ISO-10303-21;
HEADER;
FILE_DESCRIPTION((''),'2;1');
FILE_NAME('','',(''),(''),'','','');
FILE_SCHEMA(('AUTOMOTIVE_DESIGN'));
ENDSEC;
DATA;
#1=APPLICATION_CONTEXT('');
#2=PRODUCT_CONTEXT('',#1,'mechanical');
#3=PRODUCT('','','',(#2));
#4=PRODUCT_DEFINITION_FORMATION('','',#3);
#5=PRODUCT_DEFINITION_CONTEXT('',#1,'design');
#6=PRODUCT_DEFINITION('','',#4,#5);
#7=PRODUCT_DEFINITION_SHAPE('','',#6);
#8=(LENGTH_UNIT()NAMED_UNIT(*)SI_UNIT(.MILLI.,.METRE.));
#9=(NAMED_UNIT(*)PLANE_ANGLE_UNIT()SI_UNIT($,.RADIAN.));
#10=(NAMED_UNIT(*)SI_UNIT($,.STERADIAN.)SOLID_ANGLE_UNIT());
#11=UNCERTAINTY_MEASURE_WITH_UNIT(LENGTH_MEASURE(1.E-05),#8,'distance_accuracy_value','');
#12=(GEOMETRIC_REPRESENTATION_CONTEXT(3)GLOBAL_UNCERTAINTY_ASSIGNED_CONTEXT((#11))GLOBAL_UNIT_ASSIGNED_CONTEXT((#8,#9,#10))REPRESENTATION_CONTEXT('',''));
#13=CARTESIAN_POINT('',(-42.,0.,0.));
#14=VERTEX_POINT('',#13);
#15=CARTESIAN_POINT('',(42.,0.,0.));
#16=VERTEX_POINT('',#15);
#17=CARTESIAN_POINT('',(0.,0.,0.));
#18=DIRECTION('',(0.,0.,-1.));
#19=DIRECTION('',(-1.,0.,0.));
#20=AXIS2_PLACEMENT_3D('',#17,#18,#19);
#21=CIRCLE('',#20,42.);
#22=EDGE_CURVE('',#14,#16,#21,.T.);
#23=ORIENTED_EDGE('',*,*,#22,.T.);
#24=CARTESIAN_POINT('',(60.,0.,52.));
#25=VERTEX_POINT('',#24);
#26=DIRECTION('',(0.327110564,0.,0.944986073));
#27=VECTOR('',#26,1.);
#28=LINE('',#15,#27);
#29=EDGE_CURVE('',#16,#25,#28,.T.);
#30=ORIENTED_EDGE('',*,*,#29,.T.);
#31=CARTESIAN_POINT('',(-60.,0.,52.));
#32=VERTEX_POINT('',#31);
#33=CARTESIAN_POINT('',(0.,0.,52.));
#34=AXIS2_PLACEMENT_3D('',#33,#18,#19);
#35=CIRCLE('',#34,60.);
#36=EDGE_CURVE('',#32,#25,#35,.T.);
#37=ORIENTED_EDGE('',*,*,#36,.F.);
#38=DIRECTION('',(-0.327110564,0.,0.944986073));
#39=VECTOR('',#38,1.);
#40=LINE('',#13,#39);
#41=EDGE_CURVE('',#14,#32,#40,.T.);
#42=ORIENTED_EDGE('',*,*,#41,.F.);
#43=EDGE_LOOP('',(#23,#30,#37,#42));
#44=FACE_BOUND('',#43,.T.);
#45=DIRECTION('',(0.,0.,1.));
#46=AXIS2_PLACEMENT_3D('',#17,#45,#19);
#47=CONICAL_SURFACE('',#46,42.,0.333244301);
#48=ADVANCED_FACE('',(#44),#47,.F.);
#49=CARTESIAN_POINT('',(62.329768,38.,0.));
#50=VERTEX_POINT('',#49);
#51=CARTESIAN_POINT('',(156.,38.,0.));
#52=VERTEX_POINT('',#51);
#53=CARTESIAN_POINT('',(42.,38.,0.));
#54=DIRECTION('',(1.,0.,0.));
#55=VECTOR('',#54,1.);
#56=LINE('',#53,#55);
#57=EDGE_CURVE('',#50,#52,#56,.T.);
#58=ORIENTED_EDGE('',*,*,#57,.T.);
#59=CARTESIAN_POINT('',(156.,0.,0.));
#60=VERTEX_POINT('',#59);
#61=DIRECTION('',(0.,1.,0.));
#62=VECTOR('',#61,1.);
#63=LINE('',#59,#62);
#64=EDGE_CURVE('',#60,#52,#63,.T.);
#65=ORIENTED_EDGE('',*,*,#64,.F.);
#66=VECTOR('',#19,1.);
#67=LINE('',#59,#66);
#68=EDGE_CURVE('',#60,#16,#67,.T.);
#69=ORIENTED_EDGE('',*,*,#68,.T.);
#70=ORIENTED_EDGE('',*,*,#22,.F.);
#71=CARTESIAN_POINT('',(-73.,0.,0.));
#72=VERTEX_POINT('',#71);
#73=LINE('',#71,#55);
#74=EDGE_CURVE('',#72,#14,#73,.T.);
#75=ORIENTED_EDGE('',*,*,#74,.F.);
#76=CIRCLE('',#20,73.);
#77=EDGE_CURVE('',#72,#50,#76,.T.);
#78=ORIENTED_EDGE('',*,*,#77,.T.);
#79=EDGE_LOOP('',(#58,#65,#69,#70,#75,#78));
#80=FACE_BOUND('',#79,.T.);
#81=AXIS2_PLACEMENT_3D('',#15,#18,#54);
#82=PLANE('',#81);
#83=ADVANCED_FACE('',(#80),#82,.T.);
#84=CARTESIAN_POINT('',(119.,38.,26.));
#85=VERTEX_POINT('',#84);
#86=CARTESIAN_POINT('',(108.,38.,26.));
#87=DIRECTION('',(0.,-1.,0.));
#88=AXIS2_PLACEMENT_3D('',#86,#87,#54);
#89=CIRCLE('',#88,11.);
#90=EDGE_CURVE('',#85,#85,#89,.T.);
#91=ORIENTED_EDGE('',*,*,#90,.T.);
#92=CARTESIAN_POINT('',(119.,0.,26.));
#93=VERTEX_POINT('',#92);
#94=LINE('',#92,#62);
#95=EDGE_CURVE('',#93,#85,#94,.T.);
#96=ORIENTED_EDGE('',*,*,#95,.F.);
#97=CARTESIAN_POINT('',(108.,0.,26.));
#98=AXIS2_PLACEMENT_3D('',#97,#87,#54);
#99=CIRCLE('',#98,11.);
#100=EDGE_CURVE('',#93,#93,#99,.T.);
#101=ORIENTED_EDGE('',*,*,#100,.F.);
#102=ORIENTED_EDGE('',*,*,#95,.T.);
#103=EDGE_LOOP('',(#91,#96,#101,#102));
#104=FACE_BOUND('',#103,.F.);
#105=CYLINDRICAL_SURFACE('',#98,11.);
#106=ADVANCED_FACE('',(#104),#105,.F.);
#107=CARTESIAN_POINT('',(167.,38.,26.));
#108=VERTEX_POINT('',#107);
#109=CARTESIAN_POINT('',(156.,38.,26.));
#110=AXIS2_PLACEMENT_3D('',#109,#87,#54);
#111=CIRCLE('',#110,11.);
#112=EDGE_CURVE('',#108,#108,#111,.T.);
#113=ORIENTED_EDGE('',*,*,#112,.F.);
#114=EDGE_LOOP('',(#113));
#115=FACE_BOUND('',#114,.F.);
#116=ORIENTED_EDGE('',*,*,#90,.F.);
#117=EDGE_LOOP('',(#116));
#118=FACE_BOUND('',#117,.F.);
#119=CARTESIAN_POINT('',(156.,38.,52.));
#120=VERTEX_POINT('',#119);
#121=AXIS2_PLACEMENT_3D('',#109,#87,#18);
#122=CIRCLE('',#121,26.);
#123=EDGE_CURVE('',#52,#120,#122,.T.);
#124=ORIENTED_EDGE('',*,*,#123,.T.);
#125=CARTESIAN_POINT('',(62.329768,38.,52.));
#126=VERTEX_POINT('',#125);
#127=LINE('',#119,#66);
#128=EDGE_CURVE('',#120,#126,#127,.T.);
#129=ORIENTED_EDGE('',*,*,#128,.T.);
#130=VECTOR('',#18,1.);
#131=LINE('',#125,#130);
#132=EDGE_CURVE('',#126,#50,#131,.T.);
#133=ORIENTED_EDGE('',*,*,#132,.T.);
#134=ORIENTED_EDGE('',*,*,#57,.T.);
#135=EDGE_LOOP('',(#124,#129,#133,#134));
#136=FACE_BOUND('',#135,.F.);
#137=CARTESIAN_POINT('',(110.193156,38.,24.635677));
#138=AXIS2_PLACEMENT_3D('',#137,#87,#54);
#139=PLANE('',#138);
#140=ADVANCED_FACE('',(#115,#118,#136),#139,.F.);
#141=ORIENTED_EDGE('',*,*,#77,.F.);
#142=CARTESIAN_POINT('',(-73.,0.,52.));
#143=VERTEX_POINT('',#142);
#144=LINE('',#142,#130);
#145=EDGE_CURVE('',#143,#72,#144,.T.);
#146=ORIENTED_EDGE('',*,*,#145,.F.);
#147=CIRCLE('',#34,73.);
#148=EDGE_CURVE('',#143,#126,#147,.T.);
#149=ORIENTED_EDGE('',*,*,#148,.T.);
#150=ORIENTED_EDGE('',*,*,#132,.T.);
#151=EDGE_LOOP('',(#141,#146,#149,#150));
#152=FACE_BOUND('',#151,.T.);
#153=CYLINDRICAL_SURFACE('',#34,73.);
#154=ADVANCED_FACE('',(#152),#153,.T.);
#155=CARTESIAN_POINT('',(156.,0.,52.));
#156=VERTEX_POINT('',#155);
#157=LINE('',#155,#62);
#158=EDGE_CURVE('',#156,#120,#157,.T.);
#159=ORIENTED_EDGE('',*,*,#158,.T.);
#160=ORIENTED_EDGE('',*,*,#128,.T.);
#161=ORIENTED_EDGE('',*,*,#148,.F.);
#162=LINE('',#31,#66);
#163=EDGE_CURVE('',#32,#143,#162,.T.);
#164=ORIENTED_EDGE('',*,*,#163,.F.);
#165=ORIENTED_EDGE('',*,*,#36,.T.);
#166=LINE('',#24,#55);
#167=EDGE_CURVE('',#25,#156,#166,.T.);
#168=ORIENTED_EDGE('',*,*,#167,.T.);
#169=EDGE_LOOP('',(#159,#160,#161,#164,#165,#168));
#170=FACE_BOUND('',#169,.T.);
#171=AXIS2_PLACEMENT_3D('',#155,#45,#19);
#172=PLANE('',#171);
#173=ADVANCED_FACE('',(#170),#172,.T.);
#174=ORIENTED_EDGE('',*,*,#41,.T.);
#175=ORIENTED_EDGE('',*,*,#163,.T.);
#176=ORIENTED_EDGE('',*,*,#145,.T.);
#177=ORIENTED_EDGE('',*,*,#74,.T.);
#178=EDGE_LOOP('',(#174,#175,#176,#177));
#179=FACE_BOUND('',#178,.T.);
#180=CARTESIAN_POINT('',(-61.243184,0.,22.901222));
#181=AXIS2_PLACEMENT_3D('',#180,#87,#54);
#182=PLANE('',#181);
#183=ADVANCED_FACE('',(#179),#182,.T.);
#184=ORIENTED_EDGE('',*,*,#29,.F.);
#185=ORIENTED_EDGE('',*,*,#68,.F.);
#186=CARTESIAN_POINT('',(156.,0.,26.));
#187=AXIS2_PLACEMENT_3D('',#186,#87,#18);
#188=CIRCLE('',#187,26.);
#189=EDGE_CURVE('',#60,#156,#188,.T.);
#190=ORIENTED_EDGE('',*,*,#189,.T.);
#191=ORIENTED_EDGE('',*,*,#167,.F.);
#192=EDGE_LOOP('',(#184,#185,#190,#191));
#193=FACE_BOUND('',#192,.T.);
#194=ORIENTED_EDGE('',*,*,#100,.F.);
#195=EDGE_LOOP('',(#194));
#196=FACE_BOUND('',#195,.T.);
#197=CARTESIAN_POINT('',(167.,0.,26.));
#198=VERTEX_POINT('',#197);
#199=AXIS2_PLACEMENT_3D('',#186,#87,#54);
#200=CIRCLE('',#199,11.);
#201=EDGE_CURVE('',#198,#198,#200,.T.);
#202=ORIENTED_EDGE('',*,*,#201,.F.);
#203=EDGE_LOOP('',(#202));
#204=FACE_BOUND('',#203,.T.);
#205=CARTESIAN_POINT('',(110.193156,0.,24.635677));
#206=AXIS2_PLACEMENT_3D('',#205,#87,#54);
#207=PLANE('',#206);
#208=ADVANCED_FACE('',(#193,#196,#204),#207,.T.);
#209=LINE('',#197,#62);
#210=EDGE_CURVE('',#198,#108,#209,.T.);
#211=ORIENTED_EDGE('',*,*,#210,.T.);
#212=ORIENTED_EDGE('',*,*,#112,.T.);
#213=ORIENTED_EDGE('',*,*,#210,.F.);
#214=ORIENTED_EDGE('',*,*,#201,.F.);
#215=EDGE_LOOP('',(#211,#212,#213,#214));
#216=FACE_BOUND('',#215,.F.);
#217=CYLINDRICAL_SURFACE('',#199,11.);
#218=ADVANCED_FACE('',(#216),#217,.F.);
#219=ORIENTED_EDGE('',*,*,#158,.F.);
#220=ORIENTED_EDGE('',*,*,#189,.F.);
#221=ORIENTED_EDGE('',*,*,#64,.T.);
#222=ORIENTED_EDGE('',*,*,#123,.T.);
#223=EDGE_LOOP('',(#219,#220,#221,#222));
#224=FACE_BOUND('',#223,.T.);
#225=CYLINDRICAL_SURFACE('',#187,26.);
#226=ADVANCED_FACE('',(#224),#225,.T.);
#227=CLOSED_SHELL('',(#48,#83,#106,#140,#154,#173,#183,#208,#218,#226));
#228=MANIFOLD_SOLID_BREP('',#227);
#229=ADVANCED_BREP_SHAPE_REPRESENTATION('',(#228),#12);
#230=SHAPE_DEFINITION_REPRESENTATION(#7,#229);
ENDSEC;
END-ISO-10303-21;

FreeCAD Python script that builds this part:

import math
import FreeCAD as App
import Part
import Sketcher

doc = App.newDocument("Part")
body = doc.addObject("PartDesign::Body", "Body")

sketch1 = doc.addObject("Sketcher::SketchObject", "Sketch")
body.addObject(sketch1)
sketch1.AttachmentSupport = (doc.XZ_Plane, [""])
sketch1.MapMode = "FlatFace"
sketch1.addGeometry(Part.LineSegment(App.Vector(-60, 52, 0), App.Vector(-73, 52, 0)), False)
sketch1.addGeometry(Part.LineSegment(App.Vector(-73, 52, 0), App.Vector(-73, 0, 0)), False)
sketch1.addGeometry(Part.LineSegment(App.Vector(-73, 0, 0), App.Vector(-42, 0, 0)), False)
sketch1.addGeometry(Part.LineSegment(App.Vector(-42, 0, 0), App.Vector(-60, 52, 0)), False)
sketch1.addConstraint(Sketcher.Constraint("Coincident", 0, 2, 1, 1))
sketch1.addConstraint(Sketcher.Constraint("Coincident", 1, 2, 2, 1))
sketch1.addConstraint(Sketcher.Constraint("Coincident", 2, 2, 3, 1))
sketch1.addConstraint(Sketcher.Constraint("Coincident", 3, 2, 0, 1))
sketch1.addConstraint(Sketcher.Constraint("Horizontal", 0))
sketch1.addConstraint(Sketcher.Constraint("Vertical", 1))
sketch1.addConstraint(Sketcher.Constraint("Horizontal", 2))
sketch1.addConstraint(Sketcher.Constraint("PointOnObject", 1, 2, -1))
sketch1.addConstraint(Sketcher.Constraint("DistanceX", 0, 2, 0, 1, 13.0))
sketch1.addConstraint(Sketcher.Constraint("DistanceX", 2, 1, 2, 2, 31.0))
sketch1.addConstraint(Sketcher.Constraint("DistanceY", 1, 2, 1, 1, 52.0))
sketch1.addConstraint(Sketcher.Constraint("DistanceX", 0, 2, -1, 1, 73.0))
revolution = doc.addObject("PartDesign::Revolution", "Revolution")
body.addObject(revolution)
revolution.Profile = sketch1
revolution.ReferenceAxis = (sketch1, ["V_Axis"])
revolution.Angle = 180
revolution.Reversed = True

sketch2 = doc.addObject("Sketcher::SketchObject", "Sketch001")
body.addObject(sketch2)
sketch2.AttachmentSupport = (doc.XZ_Plane, [""])
sketch2.MapMode = "FlatFace"
sketch2.addGeometry(Part.ArcOfCircle(Part.Circle(App.Vector(156, 26, 0), App.Vector(0, 0, 1), 26), math.radians(-90), math.radians(90)), False)
sketch2.addGeometry(Part.LineSegment(App.Vector(156, 52, 0), App.Vector(60, 52, 0)), False)
sketch2.addGeometry(Part.LineSegment(App.Vector(60, 52, 0), App.Vector(42, 0, 0)), False)
sketch2.addGeometry(Part.LineSegment(App.Vector(42, 0, 0), App.Vector(156, 0, 0)), False)
sketch2.addConstraint(Sketcher.Constraint("Tangent", 0, 2, 1, 1))
sketch2.addConstraint(Sketcher.Constraint("Coincident", 1, 2, 2, 1))
sketch2.addConstraint(Sketcher.Constraint("Coincident", 2, 2, 3, 1))
sketch2.addConstraint(Sketcher.Constraint("Tangent", 3, 2, 0, 1))
sketch2.addConstraint(Sketcher.Constraint("Horizontal", 1))
sketch2.addConstraint(Sketcher.Constraint("Horizontal", 3))
sketch2.addConstraint(Sketcher.Constraint("PointOnObject", 2, 2, -1))
sketch2.addConstraint(Sketcher.Constraint("Radius", 0, 26.0))
sketch2.addConstraint(Sketcher.Constraint("DistanceX", 1, 2, 1, 1, 96.0))
sketch2.addConstraint(Sketcher.Constraint("DistanceX", 3, 1, 3, 2, 114.0))
sketch2.addConstraint(Sketcher.Constraint("DistanceX", -1, 1, 0, 3, 156.0))
pad1 = doc.addObject("PartDesign::Pad", "Pad")
body.addObject(pad1)
pad1.Profile = sketch2
pad1.Length = 38
pad1.Reversed = True

sketch3 = doc.addObject("Sketcher::SketchObject", "Sketch002")
body.addObject(sketch3)
sketch3.AttachmentSupport = (doc.XZ_Plane, [""])
sketch3.MapMode = "FlatFace"
sketch3.addGeometry(Part.Circle(App.Vector(156, 26, 0), App.Vector(0, 0, 1), 11), False)
sketch3.addGeometry(Part.Circle(App.Vector(108, 26, 0), App.Vector(0, 0, 1), 11), False)
sketch3.addConstraint(Sketcher.Constraint("Equal", 0, 1))
sketch3.addConstraint(Sketcher.Constraint("Horizontal", 0, 3, 1, 3))
sketch3.addConstraint(Sketcher.Constraint("Diameter", 0, 22.0))
sketch3.addConstraint(Sketcher.Constraint("DistanceX", -1, 1, 0, 3, 156.0))
sketch3.addConstraint(Sketcher.Constraint("DistanceY", -1, 1, 0, 3, 26.0))
sketch3.addConstraint(Sketcher.Constraint("DistanceX", -1, 1, 1, 3, 108.0))
pocket1 = doc.addObject("PartDesign::Pocket", "Pocket")
body.addObject(pocket1)
pocket1.Profile = sketch3
pocket1.Length = 117

doc.recompute()
